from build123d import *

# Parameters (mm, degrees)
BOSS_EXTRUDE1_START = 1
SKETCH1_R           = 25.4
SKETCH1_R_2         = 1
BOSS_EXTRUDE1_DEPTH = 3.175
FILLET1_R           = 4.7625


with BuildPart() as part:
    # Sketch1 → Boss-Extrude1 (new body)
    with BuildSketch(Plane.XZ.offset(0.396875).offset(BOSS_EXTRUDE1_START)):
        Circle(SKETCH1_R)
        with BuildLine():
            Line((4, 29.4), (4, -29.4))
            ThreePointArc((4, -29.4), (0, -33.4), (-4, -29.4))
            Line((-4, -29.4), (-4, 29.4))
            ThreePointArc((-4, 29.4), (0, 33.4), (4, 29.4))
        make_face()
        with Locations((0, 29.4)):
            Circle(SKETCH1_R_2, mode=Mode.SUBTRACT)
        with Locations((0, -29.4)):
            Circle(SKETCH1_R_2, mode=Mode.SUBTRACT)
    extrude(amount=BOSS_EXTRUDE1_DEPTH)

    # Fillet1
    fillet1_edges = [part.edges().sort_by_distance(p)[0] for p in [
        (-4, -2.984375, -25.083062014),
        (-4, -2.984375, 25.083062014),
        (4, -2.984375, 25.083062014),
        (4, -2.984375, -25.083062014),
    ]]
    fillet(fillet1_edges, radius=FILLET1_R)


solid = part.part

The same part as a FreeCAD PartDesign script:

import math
import FreeCAD as App
import Part
import Sketcher
Q = App.Units.Quantity


def edges_at(feature, points):
    """Names of the edges that pass closest to the given points."""
    edges = feature.Shape.Edges
    near = lambda p: min(range(len(edges)), key=lambda i: edges[i].distToShape(Part.Vertex(*p))[0])
    return sorted({f"Edge{near(p) + 1}" for p in points})

doc = App.newDocument("Part")
body = doc.addObject("PartDesign::Body", "Body")

sketch1 = body.newObject("Sketcher::SketchObject", "Sketch")
sketch1.AttachmentSupport = (doc.getObject("XZ_Plane"), [""])
sketch1.MapMode = "FlatFace"
sketch1.AttachmentOffset = App.Placement(App.Vector(0, 0, 1.396875), App.Rotation())
sketch1.addGeometry([
    Part.ArcOfCircle(Part.Circle(App.Vector(0, 0, 0), App.Vector(0, 0, 1), 25.4), math.radians(-81), math.radians(81)),
    Part.LineSegment(App.Vector(4, 25.1, 0), App.Vector(4, 29.4, 0)),
    Part.ArcOfCircle(Part.Circle(App.Vector(0, 29.4, 0), App.Vector(0, 0, 1), 4), math.radians(0), math.radians(180)),
    Part.LineSegment(App.Vector(-4, 29.4, 0), App.Vector(-4, 25.1, 0)),
    Part.ArcOfCircle(Part.Circle(App.Vector(0, 0, 0), App.Vector(0, 0, 1), 25.4), math.radians(99), math.radians(261)),
    Part.LineSegment(App.Vector(-4, -25.1, 0), App.Vector(-4, -29.4, 0)),
    Part.ArcOfCircle(Part.Circle(App.Vector(0, -29.4, 0), App.Vector(0, 0, 1), 4), math.radians(180), math.radians(360)),
    Part.LineSegment(App.Vector(4, -29.4, 0), App.Vector(4, -25.1, 0)),
    Part.Circle(App.Vector(0, -29.4, 0), App.Vector(0, 0, 1), 1),
    Part.Circle(App.Vector(0, 29.4, 0), App.Vector(0, 0, 1), 1),
], False)
sketch1.addConstraint([
    Sketcher.Constraint("Coincident", 0, 2, 1, 1),
    Sketcher.Constraint("Tangent", 1, 2, 2, 1),
    Sketcher.Constraint("Tangent", 2, 2, 3, 1),
    Sketcher.Constraint("Coincident", 3, 2, 4, 1),
    Sketcher.Constraint("Coincident", 4, 2, 5, 1),
    Sketcher.Constraint("Tangent", 5, 2, 6, 1),
    Sketcher.Constraint("Tangent", 6, 2, 7, 1),
    Sketcher.Constraint("Coincident", 7, 2, 0, 1),
    Sketcher.Constraint("Vertical", 1),
    Sketcher.Constraint("Vertical", 3),
    Sketcher.Constraint("Vertical", 5),
    Sketcher.Constraint("Vertical", 7),
    Sketcher.Constraint("Coincident", 0, 3, -1, 1),
    Sketcher.Constraint("Coincident", 4, 3, -1, 1),
    Sketcher.Constraint("Coincident", 8, 3, 6, 3),
    Sketcher.Constraint("Coincident", 9, 3, 2, 3),
    Sketcher.Constraint("Equal", 0, 4),
    Sketcher.Constraint("Equal", 2, 6),
    Sketcher.Constraint("Equal", 8, 9),
    Sketcher.Constraint("Symmetric", 2, 3, 6, 3, -1, 1),
    Sketcher.Constraint("PointOnObject", 2, 3, -2),
    Sketcher.Constraint("Radius", 0, Q("1 in")),
    Sketcher.Constraint("Diameter", 8, Q("2 mm")),
    Sketcher.Constraint("Radius", 2, Q("4 mm")),
    Sketcher.Constraint("DistanceY", -1, 1, 2, 3, Q("29.4 mm")),
])
pad1 = body.newObject("PartDesign::Pad", "Pad")
pad1.Profile = sketch1
pad1.Length = Q("0.125 in")
doc.recompute()

fillet = body.newObject("PartDesign::Fillet", "Fillet")
fillet.Base = (pad1, edges_at(pad1, [
    (-4, -2.984, -25.083),
    (-4, -2.984, 25.083),
    (4, -2.984, 25.083),
    (4, -2.984, -25.083),
]))
fillet.Radius = Q("0.1875 in")

doc.recompute()
